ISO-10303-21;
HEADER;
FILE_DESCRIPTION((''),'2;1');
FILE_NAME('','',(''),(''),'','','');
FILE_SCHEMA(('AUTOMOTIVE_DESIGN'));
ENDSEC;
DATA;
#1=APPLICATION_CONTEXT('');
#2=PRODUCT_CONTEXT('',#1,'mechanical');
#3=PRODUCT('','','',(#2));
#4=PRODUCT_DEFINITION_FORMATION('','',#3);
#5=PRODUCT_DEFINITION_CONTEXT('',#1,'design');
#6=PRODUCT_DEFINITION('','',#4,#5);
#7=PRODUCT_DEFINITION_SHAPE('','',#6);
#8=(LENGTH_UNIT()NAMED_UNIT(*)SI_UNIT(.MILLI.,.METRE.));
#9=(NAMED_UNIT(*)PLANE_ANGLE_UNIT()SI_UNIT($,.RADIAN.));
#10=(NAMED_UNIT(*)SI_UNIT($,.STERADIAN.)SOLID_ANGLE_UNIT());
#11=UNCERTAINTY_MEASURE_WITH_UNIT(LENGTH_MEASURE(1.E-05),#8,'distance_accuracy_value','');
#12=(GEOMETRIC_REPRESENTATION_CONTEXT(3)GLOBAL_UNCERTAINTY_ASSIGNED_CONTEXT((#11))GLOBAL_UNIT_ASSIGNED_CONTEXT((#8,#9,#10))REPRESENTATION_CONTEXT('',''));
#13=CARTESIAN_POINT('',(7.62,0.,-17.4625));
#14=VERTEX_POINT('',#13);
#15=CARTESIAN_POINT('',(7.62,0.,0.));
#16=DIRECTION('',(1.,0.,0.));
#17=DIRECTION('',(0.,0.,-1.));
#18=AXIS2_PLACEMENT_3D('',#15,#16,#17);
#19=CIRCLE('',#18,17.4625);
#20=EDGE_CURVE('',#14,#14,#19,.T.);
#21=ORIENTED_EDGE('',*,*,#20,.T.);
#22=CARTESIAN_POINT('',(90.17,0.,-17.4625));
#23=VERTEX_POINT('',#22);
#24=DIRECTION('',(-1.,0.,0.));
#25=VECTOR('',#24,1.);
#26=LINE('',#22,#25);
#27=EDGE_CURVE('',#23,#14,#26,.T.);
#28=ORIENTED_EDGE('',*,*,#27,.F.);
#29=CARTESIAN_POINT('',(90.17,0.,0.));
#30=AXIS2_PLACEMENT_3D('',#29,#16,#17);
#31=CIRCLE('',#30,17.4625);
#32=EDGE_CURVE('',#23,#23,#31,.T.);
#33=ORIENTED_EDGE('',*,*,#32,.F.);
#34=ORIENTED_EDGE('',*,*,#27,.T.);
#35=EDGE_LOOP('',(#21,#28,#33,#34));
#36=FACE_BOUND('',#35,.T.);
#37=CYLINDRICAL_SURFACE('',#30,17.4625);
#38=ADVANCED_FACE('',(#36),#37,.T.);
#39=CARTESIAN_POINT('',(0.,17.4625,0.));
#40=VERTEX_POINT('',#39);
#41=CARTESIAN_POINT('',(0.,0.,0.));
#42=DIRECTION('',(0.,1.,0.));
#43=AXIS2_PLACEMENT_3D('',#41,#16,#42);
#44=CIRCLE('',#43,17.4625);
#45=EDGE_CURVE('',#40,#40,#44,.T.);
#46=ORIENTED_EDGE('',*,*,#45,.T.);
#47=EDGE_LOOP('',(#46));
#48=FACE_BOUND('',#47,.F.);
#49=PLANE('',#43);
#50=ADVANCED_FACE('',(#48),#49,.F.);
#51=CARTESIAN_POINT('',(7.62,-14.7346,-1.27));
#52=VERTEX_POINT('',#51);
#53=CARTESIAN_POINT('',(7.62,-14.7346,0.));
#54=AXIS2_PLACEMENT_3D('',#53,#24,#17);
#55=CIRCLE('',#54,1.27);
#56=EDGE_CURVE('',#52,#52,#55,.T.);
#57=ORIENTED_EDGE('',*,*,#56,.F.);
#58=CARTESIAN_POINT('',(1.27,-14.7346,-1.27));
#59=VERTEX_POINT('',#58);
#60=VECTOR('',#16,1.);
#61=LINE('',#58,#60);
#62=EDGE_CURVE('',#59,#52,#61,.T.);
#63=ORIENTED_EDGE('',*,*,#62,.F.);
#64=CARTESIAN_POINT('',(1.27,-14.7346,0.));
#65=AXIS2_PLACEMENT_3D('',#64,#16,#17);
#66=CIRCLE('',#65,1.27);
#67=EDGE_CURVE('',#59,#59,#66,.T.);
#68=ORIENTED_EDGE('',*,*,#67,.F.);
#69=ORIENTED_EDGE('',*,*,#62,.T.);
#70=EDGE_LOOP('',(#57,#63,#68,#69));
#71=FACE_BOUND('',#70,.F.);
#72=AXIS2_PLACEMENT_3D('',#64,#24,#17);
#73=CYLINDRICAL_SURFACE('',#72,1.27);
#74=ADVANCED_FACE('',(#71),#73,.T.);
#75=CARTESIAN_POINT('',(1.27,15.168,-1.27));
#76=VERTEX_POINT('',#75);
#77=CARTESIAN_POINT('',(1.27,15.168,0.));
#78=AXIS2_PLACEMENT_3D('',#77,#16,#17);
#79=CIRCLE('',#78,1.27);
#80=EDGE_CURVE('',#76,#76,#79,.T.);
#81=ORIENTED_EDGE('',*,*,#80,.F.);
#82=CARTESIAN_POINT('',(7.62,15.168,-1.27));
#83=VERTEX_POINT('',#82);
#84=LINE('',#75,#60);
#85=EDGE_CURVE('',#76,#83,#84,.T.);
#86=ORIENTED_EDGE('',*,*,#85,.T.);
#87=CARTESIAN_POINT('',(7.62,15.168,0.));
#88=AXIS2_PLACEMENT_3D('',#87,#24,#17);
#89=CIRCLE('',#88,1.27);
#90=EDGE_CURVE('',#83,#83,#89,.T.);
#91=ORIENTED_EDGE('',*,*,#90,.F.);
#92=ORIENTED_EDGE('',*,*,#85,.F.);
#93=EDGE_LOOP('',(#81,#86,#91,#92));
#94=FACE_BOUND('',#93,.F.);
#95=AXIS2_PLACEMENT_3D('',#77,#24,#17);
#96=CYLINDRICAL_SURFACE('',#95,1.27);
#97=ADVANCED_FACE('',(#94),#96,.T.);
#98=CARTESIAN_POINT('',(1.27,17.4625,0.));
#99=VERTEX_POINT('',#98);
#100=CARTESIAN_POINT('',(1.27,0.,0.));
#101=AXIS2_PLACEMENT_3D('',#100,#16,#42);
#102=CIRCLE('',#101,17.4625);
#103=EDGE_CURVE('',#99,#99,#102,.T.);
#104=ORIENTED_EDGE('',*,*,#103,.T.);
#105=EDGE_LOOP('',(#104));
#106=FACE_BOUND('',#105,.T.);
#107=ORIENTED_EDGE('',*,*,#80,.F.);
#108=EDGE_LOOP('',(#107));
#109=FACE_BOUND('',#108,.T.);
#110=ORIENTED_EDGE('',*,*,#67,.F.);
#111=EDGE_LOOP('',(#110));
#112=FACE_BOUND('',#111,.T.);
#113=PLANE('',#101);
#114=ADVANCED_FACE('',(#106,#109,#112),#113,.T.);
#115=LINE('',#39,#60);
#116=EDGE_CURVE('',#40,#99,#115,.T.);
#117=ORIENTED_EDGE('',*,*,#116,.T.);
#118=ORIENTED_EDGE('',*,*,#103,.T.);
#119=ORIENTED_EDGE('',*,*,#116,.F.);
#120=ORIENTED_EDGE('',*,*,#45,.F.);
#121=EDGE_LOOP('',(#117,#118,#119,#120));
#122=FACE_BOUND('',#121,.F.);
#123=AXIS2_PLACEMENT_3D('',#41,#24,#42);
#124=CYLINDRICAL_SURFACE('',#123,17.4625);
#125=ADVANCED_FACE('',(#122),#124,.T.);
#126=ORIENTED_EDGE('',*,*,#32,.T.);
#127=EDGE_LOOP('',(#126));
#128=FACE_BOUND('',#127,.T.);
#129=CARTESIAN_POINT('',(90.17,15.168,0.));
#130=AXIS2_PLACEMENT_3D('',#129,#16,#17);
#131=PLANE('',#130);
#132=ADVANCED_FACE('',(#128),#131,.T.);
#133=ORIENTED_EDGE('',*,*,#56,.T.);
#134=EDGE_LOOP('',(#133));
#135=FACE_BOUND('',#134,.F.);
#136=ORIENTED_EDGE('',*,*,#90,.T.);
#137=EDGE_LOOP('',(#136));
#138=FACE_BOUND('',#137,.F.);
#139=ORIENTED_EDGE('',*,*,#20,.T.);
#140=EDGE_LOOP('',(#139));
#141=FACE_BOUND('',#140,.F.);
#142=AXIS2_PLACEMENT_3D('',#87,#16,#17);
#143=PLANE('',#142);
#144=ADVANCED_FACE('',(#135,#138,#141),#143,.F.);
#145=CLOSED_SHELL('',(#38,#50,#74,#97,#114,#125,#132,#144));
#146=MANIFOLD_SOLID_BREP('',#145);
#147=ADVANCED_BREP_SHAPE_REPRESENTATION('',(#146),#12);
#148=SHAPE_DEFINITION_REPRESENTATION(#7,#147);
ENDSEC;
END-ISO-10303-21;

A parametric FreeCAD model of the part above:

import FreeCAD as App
import Part
import Sketcher

V = App.Vector
Q = App.Units.Quantity

doc = App.newDocument("Part")
body = doc.addObject("PartDesign::Body", "Body")

sketch1 = body.newObject("Sketcher::SketchObject", "Sketch")
sketch1.AttachmentSupport = (doc.getObject("YZ_Plane"), [""])
sketch1.MapMode = "FlatFace"
sketch1.addGeometry(Part.Circle(V(0, 0, 0), V(0, 0, 1), 17), False)
sketch1.addConstraint([
    Sketcher.Constraint("Coincident", 0, 3, -1, 1),
    Sketcher.Constraint("Diameter", 0, Q("1.375 in")),
])
pad1 = body.newObject("PartDesign::Pad", "Pad")
pad1.Profile = sketch1
pad1.Length = Q("0.05 in")

sketch2 = body.newObject("Sketcher::SketchObject", "Sketch001")
sketch2.AttachmentSupport = (doc.getObject("YZ_Plane"), [""])
sketch2.MapMode = "FlatFace"
sketch2.AttachmentOffset = App.Placement(V(0, 0, 0.05 * 25.4), App.Rotation())
sketch2.addGeometry([
    Part.Circle(V(15.2, 0, 0), V(0, 0, 1), 1.3),
    Part.Circle(V(-14.7, 0, 0), V(0, 0, 1), 1.3),
], False)
sketch2.addConstraint([
    Sketcher.Constraint("Equal", 0, 1),
    Sketcher.Constraint("PointOnObject", 0, 3, -1),
    Sketcher.Constraint("PointOnObject", 1, 3, -1),
    Sketcher.Constraint("Diameter", 0, Q("0.1 in")),
    Sketcher.Constraint("DistanceX", 1, 3, -1, 1, Q("0.5801 in")),
    Sketcher.Constraint("DistanceX", -1, 1, 0, 3, 15.168),
])
pad2 = body.newObject("PartDesign::Pad", "Pad001")
pad2.Profile = sketch2
pad2.Length = Q("3.5 in")

sketch3 = body.newObject("Sketcher::SketchObject", "Sketch002")
sketch3.AttachmentSupport = (doc.getObject("YZ_Plane"), [""])
sketch3.MapMode = "FlatFace"
sketch3.AttachmentOffset = App.Placement(V(0, 0, 3.55 * 25.4), App.Rotation())
sketch3.addGeometry(Part.Circle(V(0, 0, 0), V(0, 0, 1), 17), False)
sketch3.addConstraint([
    Sketcher.Constraint("Coincident", 0, 3, -1, 1),
    Sketcher.Constraint("Diameter", 0, Q("1.375 in")),
])
pad3 = body.newObject("PartDesign::Pad", "Pad002")
pad3.Profile = sketch3
pad3.Length = Q("3.25 in")
pad3.Reversed = True

doc.recompute()
